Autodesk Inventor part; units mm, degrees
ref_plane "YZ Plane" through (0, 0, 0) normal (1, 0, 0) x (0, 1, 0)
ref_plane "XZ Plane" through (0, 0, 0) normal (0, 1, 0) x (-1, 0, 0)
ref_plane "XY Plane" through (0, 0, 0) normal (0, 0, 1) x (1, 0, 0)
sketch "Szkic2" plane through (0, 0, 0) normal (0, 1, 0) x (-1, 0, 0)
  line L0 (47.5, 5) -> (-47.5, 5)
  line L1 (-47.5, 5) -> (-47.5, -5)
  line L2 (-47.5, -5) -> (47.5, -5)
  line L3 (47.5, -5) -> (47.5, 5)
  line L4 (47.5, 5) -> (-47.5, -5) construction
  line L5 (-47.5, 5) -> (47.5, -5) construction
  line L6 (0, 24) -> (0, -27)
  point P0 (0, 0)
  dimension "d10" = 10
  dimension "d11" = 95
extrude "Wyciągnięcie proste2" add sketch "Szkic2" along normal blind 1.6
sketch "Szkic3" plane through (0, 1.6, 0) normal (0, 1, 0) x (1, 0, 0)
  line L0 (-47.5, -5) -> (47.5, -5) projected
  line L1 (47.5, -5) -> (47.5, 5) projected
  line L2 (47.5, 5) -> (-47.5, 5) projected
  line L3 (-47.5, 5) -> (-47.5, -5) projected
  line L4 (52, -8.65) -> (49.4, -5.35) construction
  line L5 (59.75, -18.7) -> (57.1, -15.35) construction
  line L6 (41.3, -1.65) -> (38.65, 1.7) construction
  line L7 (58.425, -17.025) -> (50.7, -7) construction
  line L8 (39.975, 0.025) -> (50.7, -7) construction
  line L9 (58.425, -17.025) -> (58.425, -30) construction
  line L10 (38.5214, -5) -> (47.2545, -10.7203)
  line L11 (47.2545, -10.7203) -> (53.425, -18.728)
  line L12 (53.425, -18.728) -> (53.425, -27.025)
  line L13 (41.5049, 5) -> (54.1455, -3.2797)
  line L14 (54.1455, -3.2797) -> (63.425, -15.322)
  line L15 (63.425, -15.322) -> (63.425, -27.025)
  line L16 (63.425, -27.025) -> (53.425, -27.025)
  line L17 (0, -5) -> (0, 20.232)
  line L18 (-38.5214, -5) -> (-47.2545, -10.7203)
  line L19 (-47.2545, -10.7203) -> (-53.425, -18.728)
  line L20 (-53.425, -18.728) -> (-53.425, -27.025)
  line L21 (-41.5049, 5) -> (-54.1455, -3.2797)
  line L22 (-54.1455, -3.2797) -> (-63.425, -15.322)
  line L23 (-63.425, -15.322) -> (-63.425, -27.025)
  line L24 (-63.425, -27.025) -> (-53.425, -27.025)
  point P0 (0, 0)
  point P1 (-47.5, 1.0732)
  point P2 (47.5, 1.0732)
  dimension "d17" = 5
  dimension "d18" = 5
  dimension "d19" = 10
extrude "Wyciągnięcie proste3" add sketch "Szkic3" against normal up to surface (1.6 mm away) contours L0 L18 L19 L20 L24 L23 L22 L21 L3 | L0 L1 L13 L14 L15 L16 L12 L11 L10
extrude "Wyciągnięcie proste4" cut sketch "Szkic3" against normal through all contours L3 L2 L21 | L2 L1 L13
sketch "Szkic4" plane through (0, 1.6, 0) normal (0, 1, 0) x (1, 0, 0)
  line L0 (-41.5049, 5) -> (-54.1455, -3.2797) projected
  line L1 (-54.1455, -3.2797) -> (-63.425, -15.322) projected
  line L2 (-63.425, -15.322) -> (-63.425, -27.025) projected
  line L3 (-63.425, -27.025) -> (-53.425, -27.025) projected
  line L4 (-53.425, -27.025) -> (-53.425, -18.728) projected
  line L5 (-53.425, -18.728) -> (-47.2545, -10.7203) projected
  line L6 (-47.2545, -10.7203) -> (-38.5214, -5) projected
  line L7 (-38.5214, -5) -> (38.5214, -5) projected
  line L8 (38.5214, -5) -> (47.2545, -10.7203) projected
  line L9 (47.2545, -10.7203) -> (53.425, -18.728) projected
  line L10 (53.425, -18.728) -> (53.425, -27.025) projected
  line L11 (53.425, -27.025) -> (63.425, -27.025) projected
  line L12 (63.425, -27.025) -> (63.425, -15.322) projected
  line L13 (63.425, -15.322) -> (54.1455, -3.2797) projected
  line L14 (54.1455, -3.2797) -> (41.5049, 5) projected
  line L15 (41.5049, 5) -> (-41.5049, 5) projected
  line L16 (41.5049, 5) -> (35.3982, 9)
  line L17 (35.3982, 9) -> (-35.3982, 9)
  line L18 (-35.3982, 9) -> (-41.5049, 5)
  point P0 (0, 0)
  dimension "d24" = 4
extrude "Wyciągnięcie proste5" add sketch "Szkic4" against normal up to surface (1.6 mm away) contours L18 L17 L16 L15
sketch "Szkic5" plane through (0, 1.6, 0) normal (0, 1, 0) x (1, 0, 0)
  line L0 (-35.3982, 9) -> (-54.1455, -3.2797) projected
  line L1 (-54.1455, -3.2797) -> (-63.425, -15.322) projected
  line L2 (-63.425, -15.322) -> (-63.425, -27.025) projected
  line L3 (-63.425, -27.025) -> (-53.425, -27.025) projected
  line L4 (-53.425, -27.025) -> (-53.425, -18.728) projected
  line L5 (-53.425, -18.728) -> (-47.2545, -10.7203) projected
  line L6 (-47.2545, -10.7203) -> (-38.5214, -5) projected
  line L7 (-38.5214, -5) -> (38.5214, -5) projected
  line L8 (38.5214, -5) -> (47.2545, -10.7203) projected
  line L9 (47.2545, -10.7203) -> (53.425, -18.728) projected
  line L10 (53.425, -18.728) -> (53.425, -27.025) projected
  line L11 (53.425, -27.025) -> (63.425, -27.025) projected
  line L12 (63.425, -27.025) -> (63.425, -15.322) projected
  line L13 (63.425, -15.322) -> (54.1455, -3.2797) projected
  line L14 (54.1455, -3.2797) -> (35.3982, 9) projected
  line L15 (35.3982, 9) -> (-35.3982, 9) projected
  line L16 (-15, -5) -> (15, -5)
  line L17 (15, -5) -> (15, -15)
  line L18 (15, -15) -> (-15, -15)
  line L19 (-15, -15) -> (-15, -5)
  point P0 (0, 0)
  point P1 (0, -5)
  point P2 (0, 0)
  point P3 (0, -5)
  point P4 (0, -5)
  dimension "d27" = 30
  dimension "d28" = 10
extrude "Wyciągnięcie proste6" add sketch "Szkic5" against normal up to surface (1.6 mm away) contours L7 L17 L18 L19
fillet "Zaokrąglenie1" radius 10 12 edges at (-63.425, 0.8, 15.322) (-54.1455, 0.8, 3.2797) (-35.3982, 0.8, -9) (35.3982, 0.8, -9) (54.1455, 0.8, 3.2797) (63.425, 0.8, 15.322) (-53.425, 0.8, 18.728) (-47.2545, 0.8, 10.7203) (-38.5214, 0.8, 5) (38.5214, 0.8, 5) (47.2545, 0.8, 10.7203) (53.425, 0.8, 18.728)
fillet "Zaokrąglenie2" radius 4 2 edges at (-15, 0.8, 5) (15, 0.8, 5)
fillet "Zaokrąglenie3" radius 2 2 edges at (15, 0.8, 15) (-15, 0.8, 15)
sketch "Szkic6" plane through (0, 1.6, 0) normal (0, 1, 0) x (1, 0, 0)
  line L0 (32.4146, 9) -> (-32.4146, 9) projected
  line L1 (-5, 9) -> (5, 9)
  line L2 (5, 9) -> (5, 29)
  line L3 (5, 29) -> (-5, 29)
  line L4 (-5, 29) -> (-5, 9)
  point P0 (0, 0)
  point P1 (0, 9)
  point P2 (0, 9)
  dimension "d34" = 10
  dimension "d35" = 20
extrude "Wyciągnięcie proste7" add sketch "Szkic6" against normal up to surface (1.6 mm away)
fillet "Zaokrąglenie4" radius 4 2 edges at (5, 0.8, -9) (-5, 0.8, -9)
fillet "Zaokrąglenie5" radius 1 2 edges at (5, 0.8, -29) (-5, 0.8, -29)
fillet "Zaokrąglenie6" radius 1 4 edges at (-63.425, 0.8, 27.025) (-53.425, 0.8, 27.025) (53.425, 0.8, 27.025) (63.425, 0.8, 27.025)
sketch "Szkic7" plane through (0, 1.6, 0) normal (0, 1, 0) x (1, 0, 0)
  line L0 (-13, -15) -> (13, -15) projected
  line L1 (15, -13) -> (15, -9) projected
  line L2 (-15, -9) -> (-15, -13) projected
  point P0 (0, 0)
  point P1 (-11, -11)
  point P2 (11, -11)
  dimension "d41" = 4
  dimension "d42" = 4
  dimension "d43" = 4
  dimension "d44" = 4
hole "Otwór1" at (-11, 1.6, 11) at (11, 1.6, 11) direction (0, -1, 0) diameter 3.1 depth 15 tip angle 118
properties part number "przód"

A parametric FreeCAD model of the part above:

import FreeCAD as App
import Part
import Sketcher

V = App.Vector
Q = App.Units.Quantity


def edges_at(feature, points):
    """Names of the edges that pass closest to the given points."""
    edges = feature.Shape.Edges
    near = lambda p: min(range(len(edges)), key=lambda i: edges[i].distToShape(Part.Vertex(*p))[0])
    return sorted({f"Edge{near(p) + 1}" for p in points})

doc = App.newDocument("Part")
body = doc.addObject("PartDesign::Body", "Body")

sketch1 = body.newObject("Sketcher::SketchObject", "Sketch")
sketch1.AttachmentSupport = (doc.getObject("XZ_Plane"), [""])
sketch1.MapMode = "FlatFace"
sketch1.addGeometry(Part.LineSegment(V(-48, -5, 0), V(-48, 5, 0)), False)
sketch1.addGeometry(Part.LineSegment(V(-48, 5, 0), V(48, 5, 0)), False)
sketch1.addGeometry(Part.LineSegment(V(48, 5, 0), V(48, -5, 0)), False)
sketch1.addGeometry(Part.LineSegment(V(48, -5, 0), V(-48, -5, 0)), False)
sketch1.addConstraint(Sketcher.Constraint("Coincident", 0, 2, 1, 1))
sketch1.addConstraint(Sketcher.Constraint("Coincident", 1, 2, 2, 1))
sketch1.addConstraint(Sketcher.Constraint("Coincident", 2, 2, 3, 1))
sketch1.addConstraint(Sketcher.Constraint("Coincident", 3, 2, 0, 1))
sketch1.addConstraint(Sketcher.Constraint("Vertical", 0))
sketch1.addConstraint(Sketcher.Constraint("Horizontal", 1))
sketch1.addConstraint(Sketcher.Constraint("Vertical", 2))
sketch1.addConstraint(Sketcher.Constraint("Horizontal", 3))
sketch1.addConstraint(Sketcher.Constraint("Symmetric", 0, 2, 2, 2, -1, 1))
sketch1.addConstraint(Sketcher.Constraint("DistanceX", 1, 1, 1, 2, Q("95 mm")))
sketch1.addConstraint(Sketcher.Constraint("DistanceY", 0, 1, 0, 2, Q("10 mm")))
pad1 = body.newObject("PartDesign::Pad", "Pad")
pad1.Profile = sketch1
pad1.Length = 1.6
pad1.Reversed = True

sketch2 = body.newObject("Sketcher::SketchObject", "Sketch001")
sketch2.AttachmentSupport = (doc.getObject("XZ_Plane"), [""])
sketch2.MapMode = "FlatFace"
sketch2.AttachmentOffset = App.Placement(V(0, 0, -1.6), App.Rotation())
sketch2.addGeometry(Part.LineSegment(V(-39, 5, 0), V(-48, 5, 0)), False)
sketch2.addGeometry(Part.LineSegment(V(-48, 5, 0), V(-48, -1, 0)), False)
sketch2.addGeometry(Part.LineSegment(V(-48, -1, 0), V(-54, 3, 0)), False)
sketch2.addGeometry(Part.LineSegment(V(-54, 3, 0), V(-63, 15, 0)), False)
sketch2.addGeometry(Part.LineSegment(V(-63, 15, 0), V(-63, 27, 0)), False)
sketch2.addGeometry(Part.LineSegment(V(-63, 27, 0), V(-53, 27, 0)), False)
sketch2.addGeometry(Part.LineSegment(V(-53, 27, 0), V(-53, 19, 0)), False)
sketch2.addGeometry(Part.LineSegment(V(-53, 19, 0), V(-47, 11, 0)), False)
sketch2.addGeometry(Part.LineSegment(V(-47, 11, 0), V(-39, 5, 0)), False)
sketch2.addGeometry(Part.LineSegment(V(48, 5, 0), V(39, 5, 0)), False)
sketch2.addGeometry(Part.LineSegment(V(39, 5, 0), V(47, 11, 0)), False)
sketch2.addGeometry(Part.LineSegment(V(47, 11, 0), V(53, 19, 0)), False)
sketch2.addGeometry(Part.LineSegment(V(53, 19, 0), V(53, 27, 0)), False)
sketch2.addGeometry(Part.LineSegment(V(53, 27, 0), V(63, 27, 0)), False)
sketch2.addGeometry(Part.LineSegment(V(63, 27, 0), V(63, 15, 0)), False)
sketch2.addGeometry(Part.LineSegment(V(63, 15, 0), V(54, 3, 0)), False)
sketch2.addGeometry(Part.LineSegment(V(54, 3, 0), V(48, -1, 0)), False)
sketch2.addGeometry(Part.LineSegment(V(48, -1, 0), V(48, 5, 0)), False)
sketch2.addConstraint(Sketcher.Constraint("Coincident", 0, 2, 1, 1))
sketch2.addConstraint(Sketcher.Constraint("Coincident", 1, 2, 2, 1))
sketch2.addConstraint(Sketcher.Constraint("Coincident", 2, 2, 3, 1))
sketch2.addConstraint(Sketcher.Constraint("Coincident", 3, 2, 4, 1))
sketch2.addConstraint(Sketcher.Constraint("Coincident", 4, 2, 5, 1))
sketch2.addConstraint(Sketcher.Constraint("Coincident", 5, 2, 6, 1))
sketch2.addConstraint(Sketcher.Constraint("Coincident", 6, 2, 7, 1))
sketch2.addConstraint(Sketcher.Constraint("Coincident", 7, 2, 8, 1))
sketch2.addConstraint(Sketcher.Constraint("Coincident", 8, 2, 0, 1))
sketch2.addConstraint(Sketcher.Constraint("Coincident", 9, 2, 10, 1))
sketch2.addConstraint(Sketcher.Constraint("Coincident", 10, 2, 11, 1))
sketch2.addConstraint(Sketcher.Constraint("Coincident", 11, 2, 12, 1))
sketch2.addConstraint(Sketcher.Constraint("Coincident", 12, 2, 13, 1))
sketch2.addConstraint(Sketcher.Constraint("Coincident", 13, 2, 14, 1))
sketch2.addConstraint(Sketcher.Constraint("Coincident", 14, 2, 15, 1))
sketch2.addConstraint(Sketcher.Constraint("Coincident", 15, 2, 16, 1))
sketch2.addConstraint(Sketcher.Constraint("Coincident", 16, 2, 17, 1))
sketch2.addConstraint(Sketcher.Constraint("Coincident", 17, 2, 9, 1))
sketch2.addConstraint(Sketcher.Constraint("Horizontal", 0))
sketch2.addConstraint(Sketcher.Constraint("Vertical", 1))
sketch2.addConstraint(Sketcher.Constraint("Vertical", 4))
sketch2.addConstraint(Sketcher.Constraint("Horizontal", 5))
sketch2.addConstraint(Sketcher.Constraint("Vertical", 6))
sketch2.addConstraint(Sketcher.Constraint("Horizontal", 9))
sketch2.addConstraint(Sketcher.Constraint("Vertical", 12))
sketch2.addConstraint(Sketcher.Constraint("Horizontal", 13))
sketch2.addConstraint(Sketcher.Constraint("Vertical", 14))
sketch2.addConstraint(Sketcher.Constraint("Vertical", 17))
sketch2.addConstraint(Sketcher.Constraint("Symmetric", 8, 2, 9, 2, -2))
sketch2.addConstraint(Sketcher.Constraint("Symmetric", 7, 2, 10, 2, -2))
sketch2.addConstraint(Sketcher.Constraint("Symmetric", 6, 2, 11, 2, -2))
sketch2.addConstraint(Sketcher.Constraint("Symmetric", 4, 2, 13, 2, -2))
sketch2.addConstraint(Sketcher.Constraint("Symmetric", 2, 2, 15, 2, -2))
sketch2.addConstraint(Sketcher.Constraint("Symmetric", 1, 2, 16, 2, -2))
sketch2.addConstraint(Sketcher.Constraint("Parallel", 3, 7))
sketch2.addConstraint(Sketcher.Constraint("Parallel", 2, 8))
sketch2.addConstraint(Sketcher.Constraint("Parallel", 11, 15))
sketch2.addConstraint(Sketcher.Constraint("DistanceX", 5, 1, 5, 2, Q("10 mm")))
sketch2.addConstraint(Sketcher.Constraint("DistanceY", -1, 1, 0, 2, Q("5 mm")))
sketch2.addConstraint(Sketcher.Constraint("DistanceX", 0, 2, -1, 1, Q("47.5 mm")))
sketch2.addConstraint(Sketcher.Constraint("DistanceY", 4, 1, 4, 2, Q("11.703 mm")))
sketch2.addConstraint(Sketcher.Constraint("DistanceY", 6, 2, 6, 1, Q("8.297 mm")))
sketch2.addConstraint(Sketcher.Constraint("DistanceX", 0, 2, 0, 1, Q("8.9786 mm")))
sketch2.addConstraint(Sketcher.Constraint("DistanceY", 1, 2, 1, 1, Q("6.0732 mm")))
sketch2.addConstraint(Sketcher.Constraint("DistanceX", 3, 2, -1, 1, Q("63.425 mm")))
sketch2.addConstraint(Sketcher.Constraint("DistanceY", -1, 1, 3, 2, Q("15.322 mm")))
sketch2.addConstraint(Sketcher.Constraint("DistanceX", 2, 2, 7, 2, Q("6.891 mm")))
sketch2.addConstraint(Sketcher.Constraint("DistanceX", 7, 2, 8, 2, Q("8.733 mm")))
pad2 = body.newObject("PartDesign::Pad", "Pad001")
pad2.Profile = sketch2
pad2.Length = 1.6

sketch3 = body.newObject("Sketcher::SketchObject", "Sketch002")
sketch3.AttachmentSupport = (doc.getObject("XZ_Plane"), [""])
sketch3.MapMode = "FlatFace"
sketch3.AttachmentOffset = App.Placement(V(0, 0, -1.6), App.Rotation())
sketch3.addGeometry(Part.LineSegment(V(-47.5, -5, 0), V(-47.5, -1.1, 0)), False)
sketch3.addGeometry(Part.LineSegment(V(-47.5, -1.1, 0), V(-41.5, -5, 0)), False)
sketch3.addGeometry(Part.LineSegment(V(-41.5, -5, 0), V(-47.5, -5, 0)), False)
sketch3.addGeometry(Part.LineSegment(V(47.5, -5, 0), V(41.5, -5, 0)), False)
sketch3.addGeometry(Part.LineSegment(V(41.5, -5, 0), V(47.5, -1.1, 0)), False)
sketch3.addGeometry(Part.LineSegment(V(47.5, -1.1, 0), V(47.5, -5, 0)), False)
sketch3.addConstraint(Sketcher.Constraint("Coincident", 0, 2, 1, 1))
sketch3.addConstraint(Sketcher.Constraint("Coincident", 1, 2, 2, 1))
sketch3.addConstraint(Sketcher.Constraint("Coincident", 2, 2, 0, 1))
sketch3.addConstraint(Sketcher.Constraint("Coincident", 3, 2, 4, 1))
sketch3.addConstraint(Sketcher.Constraint("Coincident", 4, 2, 5, 1))
sketch3.addConstraint(Sketcher.Constraint("Coincident", 5, 2, 3, 1))
sketch3.addConstraint(Sketcher.Constraint("Vertical", 0))
sketch3.addConstraint(Sketcher.Constraint("Horizontal", 2))
sketch3.addConstraint(Sketcher.Constraint("Horizontal", 3))
sketch3.addConstraint(Sketcher.Constraint("Vertical", 5))
sketch3.addConstraint(Sketcher.Constraint("Symmetric", 1, 2, 3, 2, -2))
sketch3.addConstraint(Sketcher.Constraint("Symmetric", 0, 2, 4, 2, -2))
sketch3.addConstraint(Sketcher.Constraint("DistanceY", 1, 2, -1, 1, Q("5 mm")))
sketch3.addConstraint(Sketcher.Constraint("DistanceX", 0, 2, 4, 2, Q("95 mm")))
sketch3.addConstraint(Sketcher.Constraint("DistanceX", 2, 2, 2, 1, Q("5.995 mm")))
sketch3.addConstraint(Sketcher.Constraint("DistanceY", 0, 1, 0, 2, Q("3.9268 mm")))
pocket1 = body.newObject("PartDesign::Pocket", "Pocket")
pocket1.Profile = sketch3
pocket1.Type = "ThroughAll"
pocket1.Reversed = True

sketch4 = body.newObject("Sketcher::SketchObject", "Sketch003")
sketch4.AttachmentSupport = (doc.getObject("XZ_Plane"), [""])
sketch4.MapMode = "FlatFace"
sketch4.AttachmentOffset = App.Placement(V(0, 0, -1.6), App.Rotation())
sketch4.addGeometry(Part.LineSegment(V(-35, -9, 0), V(-42, -5, 0)), False)
sketch4.addGeometry(Part.LineSegment(V(-42, -5, 0), V(42, -5, 0)), False)
sketch4.addGeometry(Part.LineSegment(V(42, -5, 0), V(35, -9, 0)), False)
sketch4.addGeometry(Part.LineSegment(V(35, -9, 0), V(-35, -9, 0)), False)
sketch4.addConstraint(Sketcher.Constraint("Coincident", 0, 2, 1, 1))
sketch4.addConstraint(Sketcher.Constraint("Coincident", 1, 2, 2, 1))
sketch4.addConstraint(Sketcher.Constraint("Coincident", 2, 2, 3, 1))
sketch4.addConstraint(Sketcher.Constraint("Coincident", 3, 2, 0, 1))
sketch4.addConstraint(Sketcher.Constraint("Horizontal", 1))
sketch4.addConstraint(Sketcher.Constraint("Horizontal", 3))
sketch4.addConstraint(Sketcher.Constraint("Equal", 0, 2))
sketch4.addConstraint(Sketcher.Constraint("DistanceY", 2, 2, 1, 2, Q("4 mm")))
sketch4.addConstraint(Sketcher.Constraint("DistanceY", 0, 2, -1, 1, Q("5 mm")))
sketch4.addConstraint(Sketcher.Constraint("DistanceX", 1, 1, 1, 2, Q("83.0098 mm")))
sketch4.addConstraint(Sketcher.Constraint("DistanceX", 3, 2, 3, 1, Q("70.7964 mm")))
sketch4.addConstraint(Sketcher.Constraint("DistanceX", 0, 2, -1, 1, Q("41.505 mm")))
pad3 = body.newObject("PartDesign::Pad", "Pad002")
pad3.Profile = sketch4
pad3.Length = 1.6

sketch5 = body.newObject("Sketcher::SketchObject", "Sketch004")
sketch5.AttachmentSupport = (doc.getObject("XZ_Plane"), [""])
sketch5.MapMode = "FlatFace"
sketch5.AttachmentOffset = App.Placement(V(0, 0, -1.6), App.Rotation())
sketch5.addGeometry(Part.LineSegment(V(15, 5, 0), V(-15, 5, 0)), False)
sketch5.addGeometry(Part.LineSegment(V(-15, 5, 0), V(-15, 15, 0)), False)
sketch5.addGeometry(Part.LineSegment(V(-15, 15, 0), V(15, 15, 0)), False)
sketch5.addGeometry(Part.LineSegment(V(15, 15, 0), V(15, 5, 0)), False)
sketch5.addConstraint(Sketcher.Constraint("Coincident", 0, 2, 1, 1))
sketch5.addConstraint(Sketcher.Constraint("Coincident", 1, 2, 2, 1))
sketch5.addConstraint(Sketcher.Constraint("Coincident", 2, 2, 3, 1))
sketch5.addConstraint(Sketcher.Constraint("Coincident", 3, 2, 0, 1))
sketch5.addConstraint(Sketcher.Constraint("Horizontal", 0))
sketch5.addConstraint(Sketcher.Constraint("Vertical", 1))
sketch5.addConstraint(Sketcher.Constraint("Horizontal", 2))
sketch5.addConstraint(Sketcher.Constraint("Vertical", 3))
sketch5.addConstraint(Sketcher.Constraint("DistanceX", 0, 2, 0, 1, Q("30 mm")))
sketch5.addConstraint(Sketcher.Constraint("DistanceY", 1, 1, 1, 2, Q("10 mm")))
sketch5.addConstraint(Sketcher.Constraint("DistanceX", 0, 2, -1, 1, Q("15 mm")))
sketch5.addConstraint(Sketcher.Constraint("DistanceY", -1, 1, 0, 2, Q("5 mm")))
pad4 = body.newObject("PartDesign::Pad", "Pad003")
pad4.Profile = sketch5
pad4.Length = 1.6
doc.recompute()

fillet = body.newObject("PartDesign::Fillet", "Fillet")
fillet.Base = (pad4, edges_at(pad4, [
    (-63.425, 0.8, 15.322),
    (-54.145, 0.8, 3.28),
    (-35.398, 0.8, -9),
    (35.398, 0.8, -9),
    (54.145, 0.8, 3.28),
    (63.425, 0.8, 15.322),
    (-53.425, 0.8, 18.728),
    (-47.255, 0.8, 10.72),
    (-38.521, 0.8, 5),
    (38.521, 0.8, 5),
    (47.255, 0.8, 10.72),
    (53.425, 0.8, 18.728),
]))
fillet.Radius = 10
doc.recompute()

fillet2 = body.newObject("PartDesign::Fillet", "Fillet001")
fillet2.Base = (fillet, edges_at(fillet, [(-15, 0.8, 5), (15, 0.8, 5)]))
fillet2.Radius = 4
doc.recompute()

fillet3 = body.newObject("PartDesign::Fillet", "Fillet002")
fillet3.Base = (fillet2, edges_at(fillet2, [(15, 0.8, 15), (-15, 0.8, 15)]))
fillet3.Radius = 2

sketch6 = body.newObject("Sketcher::SketchObject", "Sketch005")
sketch6.AttachmentSupport = (doc.getObject("XZ_Plane"), [""])
sketch6.MapMode = "FlatFace"
sketch6.AttachmentOffset = App.Placement(V(0, 0, -1.6), App.Rotation())
sketch6.addGeometry(Part.LineSegment(V(-5, -9, 0), V(5, -9, 0)), False)
sketch6.addGeometry(Part.LineSegment(V(5, -9, 0), V(5, -29, 0)), False)
sketch6.addGeometry(Part.LineSegment(V(5, -29, 0), V(-5, -29, 0)), False)
sketch6.addGeometry(Part.LineSegment(V(-5, -29, 0), V(-5, -9, 0)), False)
sketch6.addConstraint(Sketcher.Constraint("Coincident", 0, 2, 1, 1))
sketch6.addConstraint(Sketcher.Constraint("Coincident", 1, 2, 2, 1))
sketch6.addConstraint(Sketcher.Constraint("Coincident", 2, 2, 3, 1))
sketch6.addConstraint(Sketcher.Constraint("Coincident", 3, 2, 0, 1))
sketch6.addConstraint(Sketcher.Constraint("Horizontal", 0))
sketch6.addConstraint(Sketcher.Constraint("Vertical", 1))
sketch6.addConstraint(Sketcher.Constraint("Horizontal", 2))
sketch6.addConstraint(Sketcher.Constraint("Vertical", 3))
sketch6.addConstraint(Sketcher.Constraint("DistanceX", 0, 1, 0, 2, Q("10 mm")))
sketch6.addConstraint(Sketcher.Constraint("DistanceY", 1, 2, 1, 1, Q("20 mm")))
sketch6.addConstraint(Sketcher.Constraint("DistanceX", -1, 1, 0, 2, Q("5 mm")))
sketch6.addConstraint(Sketcher.Constraint("DistanceY", 0, 2, -1, 1, Q("9 mm")))
pad5 = body.newObject("PartDesign::Pad", "Pad004")
pad5.Profile = sketch6
pad5.Length = 1.6
doc.recompute()

fillet4 = body.newObject("PartDesign::Fillet", "Fillet003")
fillet4.Base = (pad5, edges_at(pad5, [(5, 0.8, -9), (-5, 0.8, -9)]))
fillet4.Radius = 4
doc.recompute()

fillet5 = body.newObject("PartDesign::Fillet", "Fillet004")
fillet5.Base = (fillet4, edges_at(fillet4, [(5, 0.8, -29), (-5, 0.8, -29)]))
fillet5.Radius = 1
doc.recompute()

fillet6 = body.newObject("PartDesign::Fillet", "Fillet005")
fillet6.Base = (fillet5, edges_at(fillet5, [
    (-63.425, 0.8, 27.025),
    (-53.425, 0.8, 27.025),
    (53.425, 0.8, 27.025),
    (63.425, 0.8, 27.025),
]))
fillet6.Radius = 1

sketch7 = body.newObject("Sketcher::SketchObject", "Sketch006")
sketch7.AttachmentSupport = (doc.getObject("XZ_Plane"), [""])
sketch7.MapMode = "FlatFace"
sketch7.AttachmentOffset = App.Placement(V(0, 0, -1.6), App.Rotation())
sketch7.addGeometry(Part.Circle(V(-11, 11, 0), V(0, 0, 1), 1.6), False)
sketch7.addGeometry(Part.Circle(V(11, 11, 0), V(0, 0, 1), 1.6), False)
sketch7.addConstraint(Sketcher.Constraint("Equal", 0, 1))
sketch7.addConstraint(Sketcher.Constraint("Symmetric", 0, 3, 1, 3, -2))
sketch7.addConstraint(Sketcher.Constraint("Diameter", 0, Q("3.1 mm")))
sketch7.addConstraint(Sketcher.Constraint("DistanceX", 0, 3, -1, 1, Q("11 mm")))
sketch7.addConstraint(Sketcher.Constraint("DistanceY", -1, 1, 0, 3, Q("11 mm")))
doc.recompute()
hole = body.newObject("PartDesign::Hole", "Hole")
hole.Profile = sketch7
hole.ThreadType = "None"
hole.Diameter = 3.1
hole.DepthType = "Dimension"
hole.Depth = 15
hole.DrillPoint = "Angled"
hole.DrillPointAngle = 118
hole.Reversed = True

doc.recompute()
